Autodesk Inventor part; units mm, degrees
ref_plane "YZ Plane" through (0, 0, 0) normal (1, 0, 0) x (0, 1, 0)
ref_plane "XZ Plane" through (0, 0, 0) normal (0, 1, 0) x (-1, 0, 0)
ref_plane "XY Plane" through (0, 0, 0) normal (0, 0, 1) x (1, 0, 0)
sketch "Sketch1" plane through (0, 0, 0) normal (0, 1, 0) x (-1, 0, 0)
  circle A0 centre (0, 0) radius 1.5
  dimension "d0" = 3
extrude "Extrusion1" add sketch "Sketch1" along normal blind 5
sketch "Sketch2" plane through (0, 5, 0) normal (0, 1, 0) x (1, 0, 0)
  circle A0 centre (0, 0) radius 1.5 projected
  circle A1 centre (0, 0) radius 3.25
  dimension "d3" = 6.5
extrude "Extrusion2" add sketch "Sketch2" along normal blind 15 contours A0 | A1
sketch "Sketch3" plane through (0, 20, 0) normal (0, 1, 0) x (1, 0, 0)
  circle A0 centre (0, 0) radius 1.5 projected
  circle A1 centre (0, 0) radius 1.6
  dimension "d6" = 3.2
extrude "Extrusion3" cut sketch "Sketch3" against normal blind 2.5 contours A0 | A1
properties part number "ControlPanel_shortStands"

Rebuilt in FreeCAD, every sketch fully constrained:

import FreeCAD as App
import Part
import Sketcher
from FreeCAD import Vector

doc = App.newDocument("Part")
body = doc.addObject("PartDesign::Body", "Body")

# Sketch on XZ plane
sketch1 = doc.addObject("Sketcher::SketchObject", "Sketch")
body.addObject(sketch1)
sketch1.AttachmentSupport = (doc.XZ_Plane, [""])
sketch1.MapMode = "FlatFace"
sketch1.addGeometry(Part.Circle(Vector(0, 0, 0), Vector(0, 0, 1), 1.5), False)
sketch1.addConstraint([
    Sketcher.Constraint("Coincident", 0, 3, -1, 1),
    Sketcher.Constraint("Diameter", 0, 3.0),
])
pad1 = doc.addObject("PartDesign::Pad", "Pad")
body.addObject(pad1)
pad1.Profile = sketch1
pad1.Length = 5
pad1.Reversed = True

# Sketch on XZ plane
sketch2 = doc.addObject("Sketcher::SketchObject", "Sketch001")
body.addObject(sketch2)
sketch2.AttachmentSupport = (doc.XZ_Plane, [""])
sketch2.MapMode = "FlatFace"
sketch2.AttachmentOffset = App.Placement(Vector(0, 0, -5), App.Rotation())
sketch2.addGeometry(Part.Circle(Vector(0, 0, 0), Vector(0, 0, 1), 3.2), False)
sketch2.addConstraint([
    Sketcher.Constraint("Coincident", 0, 3, -1, 1),
    Sketcher.Constraint("Diameter", 0, 6.5),
])
pad2 = doc.addObject("PartDesign::Pad", "Pad001")
body.addObject(pad2)
pad2.Profile = sketch2
pad2.Length = 15
pad2.Reversed = True

# Sketch on XZ plane
sketch3 = doc.addObject("Sketcher::SketchObject", "Sketch002")
body.addObject(sketch3)
sketch3.AttachmentSupport = (doc.XZ_Plane, [""])
sketch3.MapMode = "FlatFace"
sketch3.AttachmentOffset = App.Placement(Vector(0, 0, -20), App.Rotation())
sketch3.addGeometry(Part.Circle(Vector(0, 0, 0), Vector(0, 0, 1), 1.6), False)
sketch3.addConstraint([
    Sketcher.Constraint("Coincident", 0, 3, -1, 1),
    Sketcher.Constraint("Diameter", 0, 3.2),
])
pocket1 = doc.addObject("PartDesign::Pocket", "Pocket")
body.addObject(pocket1)
pocket1.Profile = sketch3
pocket1.Length = 2.5
pocket1.Reversed = True

doc.recompute()
